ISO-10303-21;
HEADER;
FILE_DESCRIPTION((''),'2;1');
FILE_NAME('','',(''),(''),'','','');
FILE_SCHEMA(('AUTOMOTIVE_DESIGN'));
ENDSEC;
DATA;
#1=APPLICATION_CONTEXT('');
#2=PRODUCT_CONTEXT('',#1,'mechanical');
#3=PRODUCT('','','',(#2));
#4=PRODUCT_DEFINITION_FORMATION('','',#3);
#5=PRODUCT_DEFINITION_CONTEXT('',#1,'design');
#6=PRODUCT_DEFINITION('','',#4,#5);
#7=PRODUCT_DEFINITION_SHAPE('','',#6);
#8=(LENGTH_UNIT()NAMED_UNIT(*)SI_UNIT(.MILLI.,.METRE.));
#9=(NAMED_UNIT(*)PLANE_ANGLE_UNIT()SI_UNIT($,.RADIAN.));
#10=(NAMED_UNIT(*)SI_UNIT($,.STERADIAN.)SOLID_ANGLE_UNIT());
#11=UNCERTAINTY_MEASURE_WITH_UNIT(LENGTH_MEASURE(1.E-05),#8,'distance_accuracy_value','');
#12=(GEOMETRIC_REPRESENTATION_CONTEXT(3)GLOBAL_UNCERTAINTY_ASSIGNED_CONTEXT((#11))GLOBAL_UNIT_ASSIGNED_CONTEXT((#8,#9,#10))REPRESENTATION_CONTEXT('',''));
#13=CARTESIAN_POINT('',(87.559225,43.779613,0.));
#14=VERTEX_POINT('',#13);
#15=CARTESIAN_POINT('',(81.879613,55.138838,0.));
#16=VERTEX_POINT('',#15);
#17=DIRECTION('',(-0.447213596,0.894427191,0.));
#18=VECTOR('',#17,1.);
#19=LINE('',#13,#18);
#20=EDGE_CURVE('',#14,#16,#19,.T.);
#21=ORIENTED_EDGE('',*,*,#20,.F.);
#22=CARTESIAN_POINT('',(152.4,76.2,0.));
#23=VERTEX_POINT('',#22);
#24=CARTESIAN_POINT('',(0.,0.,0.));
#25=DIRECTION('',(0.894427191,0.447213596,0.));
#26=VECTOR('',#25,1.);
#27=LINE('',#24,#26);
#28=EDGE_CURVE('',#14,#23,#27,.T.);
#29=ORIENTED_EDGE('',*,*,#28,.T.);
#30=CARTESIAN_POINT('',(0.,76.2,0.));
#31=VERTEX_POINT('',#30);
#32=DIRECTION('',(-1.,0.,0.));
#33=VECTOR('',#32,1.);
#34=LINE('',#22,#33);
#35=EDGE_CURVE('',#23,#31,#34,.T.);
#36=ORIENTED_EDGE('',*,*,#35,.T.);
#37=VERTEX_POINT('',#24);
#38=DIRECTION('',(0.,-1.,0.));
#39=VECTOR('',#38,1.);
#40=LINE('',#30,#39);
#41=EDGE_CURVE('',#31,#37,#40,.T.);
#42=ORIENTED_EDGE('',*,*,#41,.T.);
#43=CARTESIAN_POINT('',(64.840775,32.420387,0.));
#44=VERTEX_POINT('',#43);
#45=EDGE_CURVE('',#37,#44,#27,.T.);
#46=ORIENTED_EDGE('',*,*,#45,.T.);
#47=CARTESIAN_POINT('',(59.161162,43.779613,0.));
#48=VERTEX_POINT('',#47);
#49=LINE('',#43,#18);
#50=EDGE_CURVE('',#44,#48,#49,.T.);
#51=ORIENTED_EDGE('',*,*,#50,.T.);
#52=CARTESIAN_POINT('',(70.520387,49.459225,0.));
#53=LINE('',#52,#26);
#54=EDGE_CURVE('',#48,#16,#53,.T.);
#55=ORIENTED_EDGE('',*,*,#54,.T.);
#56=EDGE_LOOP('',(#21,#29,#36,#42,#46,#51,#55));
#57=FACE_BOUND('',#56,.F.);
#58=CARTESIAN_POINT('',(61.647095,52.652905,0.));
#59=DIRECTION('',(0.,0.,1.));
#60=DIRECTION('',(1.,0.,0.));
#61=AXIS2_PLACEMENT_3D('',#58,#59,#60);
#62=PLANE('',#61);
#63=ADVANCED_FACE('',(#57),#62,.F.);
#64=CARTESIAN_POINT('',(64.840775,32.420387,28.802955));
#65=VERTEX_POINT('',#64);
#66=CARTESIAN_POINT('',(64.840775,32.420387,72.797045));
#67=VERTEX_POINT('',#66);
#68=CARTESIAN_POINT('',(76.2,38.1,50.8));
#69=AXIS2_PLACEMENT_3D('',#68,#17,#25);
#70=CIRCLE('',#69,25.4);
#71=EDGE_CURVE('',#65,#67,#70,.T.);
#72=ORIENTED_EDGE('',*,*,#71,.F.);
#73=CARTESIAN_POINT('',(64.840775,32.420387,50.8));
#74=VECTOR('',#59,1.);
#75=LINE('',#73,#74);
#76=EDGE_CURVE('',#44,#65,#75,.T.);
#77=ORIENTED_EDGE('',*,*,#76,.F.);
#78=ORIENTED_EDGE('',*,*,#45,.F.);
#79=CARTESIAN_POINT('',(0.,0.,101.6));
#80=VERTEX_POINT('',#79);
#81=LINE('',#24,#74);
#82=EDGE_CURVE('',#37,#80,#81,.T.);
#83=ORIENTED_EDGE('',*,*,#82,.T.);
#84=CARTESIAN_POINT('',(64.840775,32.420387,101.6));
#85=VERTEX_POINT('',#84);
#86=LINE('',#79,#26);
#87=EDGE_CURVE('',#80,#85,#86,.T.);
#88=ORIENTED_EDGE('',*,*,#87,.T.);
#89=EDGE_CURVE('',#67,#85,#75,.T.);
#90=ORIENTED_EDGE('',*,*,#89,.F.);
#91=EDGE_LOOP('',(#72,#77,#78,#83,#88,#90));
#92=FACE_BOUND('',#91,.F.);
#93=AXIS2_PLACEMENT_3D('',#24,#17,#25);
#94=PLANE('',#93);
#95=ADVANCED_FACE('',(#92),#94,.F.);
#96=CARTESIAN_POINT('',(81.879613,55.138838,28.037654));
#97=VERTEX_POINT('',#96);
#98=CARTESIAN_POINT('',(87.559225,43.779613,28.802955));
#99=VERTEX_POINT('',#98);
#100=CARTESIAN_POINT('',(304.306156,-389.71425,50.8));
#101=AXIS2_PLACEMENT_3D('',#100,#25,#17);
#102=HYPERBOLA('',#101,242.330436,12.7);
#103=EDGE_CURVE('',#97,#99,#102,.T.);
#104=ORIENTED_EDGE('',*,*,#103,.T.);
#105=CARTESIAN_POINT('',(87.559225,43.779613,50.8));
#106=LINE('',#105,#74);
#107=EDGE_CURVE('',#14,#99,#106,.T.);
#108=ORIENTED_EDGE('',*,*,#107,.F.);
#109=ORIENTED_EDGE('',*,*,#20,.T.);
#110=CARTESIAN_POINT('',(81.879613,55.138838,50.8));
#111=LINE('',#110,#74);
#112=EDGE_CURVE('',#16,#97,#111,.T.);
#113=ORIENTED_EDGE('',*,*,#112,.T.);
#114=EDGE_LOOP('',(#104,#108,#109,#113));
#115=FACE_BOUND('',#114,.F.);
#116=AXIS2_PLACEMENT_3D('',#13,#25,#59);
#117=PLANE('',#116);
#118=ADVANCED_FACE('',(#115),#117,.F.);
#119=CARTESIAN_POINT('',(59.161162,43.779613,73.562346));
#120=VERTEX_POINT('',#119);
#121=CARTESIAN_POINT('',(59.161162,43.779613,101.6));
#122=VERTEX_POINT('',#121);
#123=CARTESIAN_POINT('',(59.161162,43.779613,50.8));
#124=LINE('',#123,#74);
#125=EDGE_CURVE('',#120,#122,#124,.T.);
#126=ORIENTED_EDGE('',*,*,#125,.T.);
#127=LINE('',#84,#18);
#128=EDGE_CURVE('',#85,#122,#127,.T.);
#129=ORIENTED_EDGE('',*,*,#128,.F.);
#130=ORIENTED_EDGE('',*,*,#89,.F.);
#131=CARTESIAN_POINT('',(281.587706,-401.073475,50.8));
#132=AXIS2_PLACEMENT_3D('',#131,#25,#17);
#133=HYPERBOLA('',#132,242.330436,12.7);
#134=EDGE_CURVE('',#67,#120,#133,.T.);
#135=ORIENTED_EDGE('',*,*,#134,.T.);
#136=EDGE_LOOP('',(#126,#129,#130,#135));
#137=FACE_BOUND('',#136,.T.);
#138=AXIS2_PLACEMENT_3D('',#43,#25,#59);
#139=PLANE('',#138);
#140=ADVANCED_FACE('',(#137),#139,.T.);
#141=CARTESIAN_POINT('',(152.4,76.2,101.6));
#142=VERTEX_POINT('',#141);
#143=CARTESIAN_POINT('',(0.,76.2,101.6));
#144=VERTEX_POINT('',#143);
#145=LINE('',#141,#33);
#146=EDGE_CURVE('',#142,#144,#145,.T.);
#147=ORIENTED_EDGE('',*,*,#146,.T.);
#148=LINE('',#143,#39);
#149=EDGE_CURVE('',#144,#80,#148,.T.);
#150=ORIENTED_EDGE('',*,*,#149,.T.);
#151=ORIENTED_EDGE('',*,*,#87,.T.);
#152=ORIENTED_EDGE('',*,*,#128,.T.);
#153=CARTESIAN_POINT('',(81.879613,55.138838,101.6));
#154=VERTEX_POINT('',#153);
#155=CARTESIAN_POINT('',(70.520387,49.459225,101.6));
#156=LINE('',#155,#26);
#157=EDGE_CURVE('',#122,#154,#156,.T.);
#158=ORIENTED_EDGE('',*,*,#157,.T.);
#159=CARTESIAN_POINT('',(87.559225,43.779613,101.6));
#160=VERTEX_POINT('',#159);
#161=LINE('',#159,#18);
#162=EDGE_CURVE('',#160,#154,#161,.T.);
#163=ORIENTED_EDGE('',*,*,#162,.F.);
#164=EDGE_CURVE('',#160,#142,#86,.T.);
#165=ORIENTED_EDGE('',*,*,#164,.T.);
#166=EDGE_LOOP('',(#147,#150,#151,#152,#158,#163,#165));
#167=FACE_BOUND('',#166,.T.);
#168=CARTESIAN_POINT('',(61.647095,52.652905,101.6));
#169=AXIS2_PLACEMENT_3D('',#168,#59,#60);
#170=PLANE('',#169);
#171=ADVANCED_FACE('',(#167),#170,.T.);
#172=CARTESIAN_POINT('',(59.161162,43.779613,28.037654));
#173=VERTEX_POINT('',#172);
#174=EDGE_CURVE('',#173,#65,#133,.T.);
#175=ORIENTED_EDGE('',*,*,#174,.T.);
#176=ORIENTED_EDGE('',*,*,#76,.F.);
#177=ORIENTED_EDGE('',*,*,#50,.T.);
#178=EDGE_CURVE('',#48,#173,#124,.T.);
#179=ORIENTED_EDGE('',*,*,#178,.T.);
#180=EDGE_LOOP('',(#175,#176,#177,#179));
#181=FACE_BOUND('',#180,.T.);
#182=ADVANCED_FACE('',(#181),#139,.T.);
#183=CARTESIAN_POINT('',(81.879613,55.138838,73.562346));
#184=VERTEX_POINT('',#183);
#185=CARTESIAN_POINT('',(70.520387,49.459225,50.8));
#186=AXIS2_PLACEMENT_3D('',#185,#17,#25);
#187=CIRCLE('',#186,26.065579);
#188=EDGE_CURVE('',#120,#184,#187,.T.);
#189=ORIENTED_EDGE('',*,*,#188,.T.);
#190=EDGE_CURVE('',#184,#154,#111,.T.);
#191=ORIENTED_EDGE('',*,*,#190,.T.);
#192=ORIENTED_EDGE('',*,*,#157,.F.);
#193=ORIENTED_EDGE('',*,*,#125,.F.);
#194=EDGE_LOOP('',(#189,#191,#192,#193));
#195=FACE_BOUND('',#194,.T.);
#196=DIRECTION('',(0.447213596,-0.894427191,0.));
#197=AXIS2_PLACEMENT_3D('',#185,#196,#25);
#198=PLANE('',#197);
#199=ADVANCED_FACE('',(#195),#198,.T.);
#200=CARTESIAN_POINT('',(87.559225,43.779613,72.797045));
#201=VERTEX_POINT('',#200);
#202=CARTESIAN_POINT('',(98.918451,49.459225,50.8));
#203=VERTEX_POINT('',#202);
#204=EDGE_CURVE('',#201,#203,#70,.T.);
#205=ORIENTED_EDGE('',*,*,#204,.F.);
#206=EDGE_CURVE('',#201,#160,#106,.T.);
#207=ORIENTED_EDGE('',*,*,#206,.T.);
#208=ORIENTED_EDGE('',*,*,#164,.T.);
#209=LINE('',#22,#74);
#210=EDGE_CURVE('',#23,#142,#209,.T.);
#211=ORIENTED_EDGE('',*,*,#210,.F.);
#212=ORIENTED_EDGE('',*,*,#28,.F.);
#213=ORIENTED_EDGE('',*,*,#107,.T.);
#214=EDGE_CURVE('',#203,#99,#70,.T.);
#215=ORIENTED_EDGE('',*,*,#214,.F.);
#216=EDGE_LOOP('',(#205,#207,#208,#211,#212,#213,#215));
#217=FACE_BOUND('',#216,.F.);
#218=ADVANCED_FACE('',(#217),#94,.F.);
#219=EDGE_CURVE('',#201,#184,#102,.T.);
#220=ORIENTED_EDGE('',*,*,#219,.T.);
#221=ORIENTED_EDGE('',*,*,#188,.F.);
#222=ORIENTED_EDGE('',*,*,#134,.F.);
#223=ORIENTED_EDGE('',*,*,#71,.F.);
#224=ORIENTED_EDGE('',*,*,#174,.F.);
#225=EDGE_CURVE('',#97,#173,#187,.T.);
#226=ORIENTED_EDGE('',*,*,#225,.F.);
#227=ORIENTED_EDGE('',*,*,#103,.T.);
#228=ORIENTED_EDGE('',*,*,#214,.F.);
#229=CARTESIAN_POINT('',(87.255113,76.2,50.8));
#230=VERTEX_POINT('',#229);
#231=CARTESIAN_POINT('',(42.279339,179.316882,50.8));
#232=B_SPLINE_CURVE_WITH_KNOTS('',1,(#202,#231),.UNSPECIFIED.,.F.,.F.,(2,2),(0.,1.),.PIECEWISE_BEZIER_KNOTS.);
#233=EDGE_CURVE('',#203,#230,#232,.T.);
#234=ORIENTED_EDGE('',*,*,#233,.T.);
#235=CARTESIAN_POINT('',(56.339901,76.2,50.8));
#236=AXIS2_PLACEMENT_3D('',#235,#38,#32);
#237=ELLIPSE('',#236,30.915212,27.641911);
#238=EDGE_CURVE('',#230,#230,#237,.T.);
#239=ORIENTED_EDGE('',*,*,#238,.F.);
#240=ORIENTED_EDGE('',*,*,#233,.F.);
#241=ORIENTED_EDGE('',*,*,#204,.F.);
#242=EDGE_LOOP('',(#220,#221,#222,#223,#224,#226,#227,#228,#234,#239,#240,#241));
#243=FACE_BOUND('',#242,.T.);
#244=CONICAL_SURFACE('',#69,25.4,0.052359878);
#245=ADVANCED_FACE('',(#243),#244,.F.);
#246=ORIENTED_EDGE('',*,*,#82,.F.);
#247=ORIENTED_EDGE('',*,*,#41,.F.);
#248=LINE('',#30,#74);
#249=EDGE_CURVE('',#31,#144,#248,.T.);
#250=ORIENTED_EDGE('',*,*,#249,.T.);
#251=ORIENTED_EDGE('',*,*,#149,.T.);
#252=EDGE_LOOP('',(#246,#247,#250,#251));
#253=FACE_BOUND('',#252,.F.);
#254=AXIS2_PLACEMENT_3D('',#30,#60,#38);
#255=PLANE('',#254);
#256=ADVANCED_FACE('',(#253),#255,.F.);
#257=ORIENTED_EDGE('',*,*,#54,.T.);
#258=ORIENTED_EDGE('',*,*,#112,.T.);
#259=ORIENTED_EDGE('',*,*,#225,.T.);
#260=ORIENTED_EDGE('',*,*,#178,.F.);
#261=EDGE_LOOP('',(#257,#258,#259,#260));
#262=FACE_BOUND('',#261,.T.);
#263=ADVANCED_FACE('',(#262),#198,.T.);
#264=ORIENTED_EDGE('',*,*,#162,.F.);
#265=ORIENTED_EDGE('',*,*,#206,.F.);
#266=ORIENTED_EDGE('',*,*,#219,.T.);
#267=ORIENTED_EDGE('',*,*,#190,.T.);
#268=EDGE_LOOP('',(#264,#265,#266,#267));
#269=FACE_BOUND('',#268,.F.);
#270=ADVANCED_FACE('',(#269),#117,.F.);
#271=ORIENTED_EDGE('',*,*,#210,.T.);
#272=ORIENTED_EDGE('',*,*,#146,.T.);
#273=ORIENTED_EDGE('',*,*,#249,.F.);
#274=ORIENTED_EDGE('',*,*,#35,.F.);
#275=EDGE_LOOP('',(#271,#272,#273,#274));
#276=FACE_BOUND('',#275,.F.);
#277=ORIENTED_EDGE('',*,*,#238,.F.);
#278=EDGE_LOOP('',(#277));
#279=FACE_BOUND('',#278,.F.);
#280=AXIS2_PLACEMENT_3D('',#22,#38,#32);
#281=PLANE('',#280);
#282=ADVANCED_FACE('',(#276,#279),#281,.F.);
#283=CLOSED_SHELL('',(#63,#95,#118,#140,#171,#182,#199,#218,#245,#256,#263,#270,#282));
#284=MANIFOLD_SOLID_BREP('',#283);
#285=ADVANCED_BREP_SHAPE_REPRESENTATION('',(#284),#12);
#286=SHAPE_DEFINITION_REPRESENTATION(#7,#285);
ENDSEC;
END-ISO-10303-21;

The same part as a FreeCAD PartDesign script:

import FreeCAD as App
import Part
import Sketcher
Q = App.Units.Quantity

doc = App.newDocument("Part")
body = doc.addObject("PartDesign::Body", "Body")

sketch1 = body.newObject("Sketcher::SketchObject", "Sketch")
sketch1.AttachmentSupport = (doc.getObject("XY_Plane"), [""])
sketch1.MapMode = "FlatFace"
sketch1.addGeometry(Part.LineSegment(App.Vector(0, 76, 0), App.Vector(0, 0, 0)), False)
sketch1.addGeometry(Part.LineSegment(App.Vector(0, 0, 0), App.Vector(152, 76, 0)), False)
sketch1.addGeometry(Part.LineSegment(App.Vector(152, 76, 0), App.Vector(0, 76, 0)), False)
sketch1.addConstraint(Sketcher.Constraint("Coincident", 0, 2, 1, 1))
sketch1.addConstraint(Sketcher.Constraint("Coincident", 1, 2, 2, 1))
sketch1.addConstraint(Sketcher.Constraint("Coincident", 2, 2, 0, 1))
sketch1.addConstraint(Sketcher.Constraint("Vertical", 0))
sketch1.addConstraint(Sketcher.Constraint("Horizontal", 2))
sketch1.addConstraint(Sketcher.Constraint("Coincident", 0, 2, -1, 1))
sketch1.addConstraint(Sketcher.Constraint("DistanceX", 2, 2, 2, 1, Q("6 in")))
sketch1.addConstraint(Sketcher.Constraint("DistanceY", 0, 2, 0, 1, Q("3 in")))
pad1 = body.newObject("PartDesign::Pad", "Pad")
pad1.Profile = sketch1
pad1.Length = Q("4 in")

sketch2 = body.newObject("Sketcher::SketchObject", "Sketch001")
sketch2.Placement = App.Placement(App.Vector(0, 0, 0), App.Rotation(App.Vector(0.894427191, 0.447213595, 0), App.Vector(0, 0, 1), App.Vector(0.447213595, -0.894427191, 0), "ZXY"))
sketch2.addGeometry(Part.LineSegment(App.Vector(72, 102, 0), App.Vector(72, 0, 0)), False)
sketch2.addGeometry(Part.LineSegment(App.Vector(72, 0, 0), App.Vector(98, 0, 0)), False)
sketch2.addGeometry(Part.LineSegment(App.Vector(98, 0, 0), App.Vector(98, 102, 0)), False)
sketch2.addGeometry(Part.LineSegment(App.Vector(98, 102, 0), App.Vector(72, 102, 0)), False)
sketch2.addConstraint(Sketcher.Constraint("Coincident", 0, 2, 1, 1))
sketch2.addConstraint(Sketcher.Constraint("Coincident", 1, 2, 2, 1))
sketch2.addConstraint(Sketcher.Constraint("Coincident", 2, 2, 3, 1))
sketch2.addConstraint(Sketcher.Constraint("Coincident", 3, 2, 0, 1))
sketch2.addConstraint(Sketcher.Constraint("Vertical", 0))
sketch2.addConstraint(Sketcher.Constraint("Horizontal", 1))
sketch2.addConstraint(Sketcher.Constraint("Vertical", 2))
sketch2.addConstraint(Sketcher.Constraint("Horizontal", 3))
sketch2.addConstraint(Sketcher.Constraint("PointOnObject", 0, 2, -1))
sketch2.addConstraint(Sketcher.Constraint("DistanceX", 1, 1, 1, 2, Q("1 in")))
sketch2.addConstraint(Sketcher.Constraint("DistanceY", 0, 2, 0, 1, Q("4 in")))
sketch2.addConstraint(Sketcher.Constraint("DistanceX", -1, 1, 0, 2, Q("72.49419 mm")))
pocket1 = body.newObject("PartDesign::Pocket", "Pocket")
pocket1.Profile = sketch2
pocket1.Length = Q("0.5 in")

sketch3 = body.newObject("Sketcher::SketchObject", "Sketch002")
sketch3.Placement = App.Placement(App.Vector(0, 0, 0), App.Rotation(App.Vector(0.894427191, 0.447213595, 0), App.Vector(0, 0, 1), App.Vector(0.447213595, -0.894427191, 0), "ZXY"))
sketch3.addGeometry(Part.Circle(App.Vector(85, 51, 0), App.Vector(0, 0, 1), 25), False)
sketch3.addConstraint(Sketcher.Constraint("Diameter", 0, Q("2 in")))
sketch3.addConstraint(Sketcher.Constraint("DistanceY", -1, 1, 0, 3, Q("2 in")))
sketch3.addConstraint(Sketcher.Constraint("DistanceX", -1, 1, 0, 3, Q("85.19419 mm")))
pocket2 = body.newObject("PartDesign::Pocket", "Pocket001")
pocket2.Profile = sketch3
pocket2.Length = Q("5.57 in")
pocket2.TaperAngle = 3

doc.recompute()
